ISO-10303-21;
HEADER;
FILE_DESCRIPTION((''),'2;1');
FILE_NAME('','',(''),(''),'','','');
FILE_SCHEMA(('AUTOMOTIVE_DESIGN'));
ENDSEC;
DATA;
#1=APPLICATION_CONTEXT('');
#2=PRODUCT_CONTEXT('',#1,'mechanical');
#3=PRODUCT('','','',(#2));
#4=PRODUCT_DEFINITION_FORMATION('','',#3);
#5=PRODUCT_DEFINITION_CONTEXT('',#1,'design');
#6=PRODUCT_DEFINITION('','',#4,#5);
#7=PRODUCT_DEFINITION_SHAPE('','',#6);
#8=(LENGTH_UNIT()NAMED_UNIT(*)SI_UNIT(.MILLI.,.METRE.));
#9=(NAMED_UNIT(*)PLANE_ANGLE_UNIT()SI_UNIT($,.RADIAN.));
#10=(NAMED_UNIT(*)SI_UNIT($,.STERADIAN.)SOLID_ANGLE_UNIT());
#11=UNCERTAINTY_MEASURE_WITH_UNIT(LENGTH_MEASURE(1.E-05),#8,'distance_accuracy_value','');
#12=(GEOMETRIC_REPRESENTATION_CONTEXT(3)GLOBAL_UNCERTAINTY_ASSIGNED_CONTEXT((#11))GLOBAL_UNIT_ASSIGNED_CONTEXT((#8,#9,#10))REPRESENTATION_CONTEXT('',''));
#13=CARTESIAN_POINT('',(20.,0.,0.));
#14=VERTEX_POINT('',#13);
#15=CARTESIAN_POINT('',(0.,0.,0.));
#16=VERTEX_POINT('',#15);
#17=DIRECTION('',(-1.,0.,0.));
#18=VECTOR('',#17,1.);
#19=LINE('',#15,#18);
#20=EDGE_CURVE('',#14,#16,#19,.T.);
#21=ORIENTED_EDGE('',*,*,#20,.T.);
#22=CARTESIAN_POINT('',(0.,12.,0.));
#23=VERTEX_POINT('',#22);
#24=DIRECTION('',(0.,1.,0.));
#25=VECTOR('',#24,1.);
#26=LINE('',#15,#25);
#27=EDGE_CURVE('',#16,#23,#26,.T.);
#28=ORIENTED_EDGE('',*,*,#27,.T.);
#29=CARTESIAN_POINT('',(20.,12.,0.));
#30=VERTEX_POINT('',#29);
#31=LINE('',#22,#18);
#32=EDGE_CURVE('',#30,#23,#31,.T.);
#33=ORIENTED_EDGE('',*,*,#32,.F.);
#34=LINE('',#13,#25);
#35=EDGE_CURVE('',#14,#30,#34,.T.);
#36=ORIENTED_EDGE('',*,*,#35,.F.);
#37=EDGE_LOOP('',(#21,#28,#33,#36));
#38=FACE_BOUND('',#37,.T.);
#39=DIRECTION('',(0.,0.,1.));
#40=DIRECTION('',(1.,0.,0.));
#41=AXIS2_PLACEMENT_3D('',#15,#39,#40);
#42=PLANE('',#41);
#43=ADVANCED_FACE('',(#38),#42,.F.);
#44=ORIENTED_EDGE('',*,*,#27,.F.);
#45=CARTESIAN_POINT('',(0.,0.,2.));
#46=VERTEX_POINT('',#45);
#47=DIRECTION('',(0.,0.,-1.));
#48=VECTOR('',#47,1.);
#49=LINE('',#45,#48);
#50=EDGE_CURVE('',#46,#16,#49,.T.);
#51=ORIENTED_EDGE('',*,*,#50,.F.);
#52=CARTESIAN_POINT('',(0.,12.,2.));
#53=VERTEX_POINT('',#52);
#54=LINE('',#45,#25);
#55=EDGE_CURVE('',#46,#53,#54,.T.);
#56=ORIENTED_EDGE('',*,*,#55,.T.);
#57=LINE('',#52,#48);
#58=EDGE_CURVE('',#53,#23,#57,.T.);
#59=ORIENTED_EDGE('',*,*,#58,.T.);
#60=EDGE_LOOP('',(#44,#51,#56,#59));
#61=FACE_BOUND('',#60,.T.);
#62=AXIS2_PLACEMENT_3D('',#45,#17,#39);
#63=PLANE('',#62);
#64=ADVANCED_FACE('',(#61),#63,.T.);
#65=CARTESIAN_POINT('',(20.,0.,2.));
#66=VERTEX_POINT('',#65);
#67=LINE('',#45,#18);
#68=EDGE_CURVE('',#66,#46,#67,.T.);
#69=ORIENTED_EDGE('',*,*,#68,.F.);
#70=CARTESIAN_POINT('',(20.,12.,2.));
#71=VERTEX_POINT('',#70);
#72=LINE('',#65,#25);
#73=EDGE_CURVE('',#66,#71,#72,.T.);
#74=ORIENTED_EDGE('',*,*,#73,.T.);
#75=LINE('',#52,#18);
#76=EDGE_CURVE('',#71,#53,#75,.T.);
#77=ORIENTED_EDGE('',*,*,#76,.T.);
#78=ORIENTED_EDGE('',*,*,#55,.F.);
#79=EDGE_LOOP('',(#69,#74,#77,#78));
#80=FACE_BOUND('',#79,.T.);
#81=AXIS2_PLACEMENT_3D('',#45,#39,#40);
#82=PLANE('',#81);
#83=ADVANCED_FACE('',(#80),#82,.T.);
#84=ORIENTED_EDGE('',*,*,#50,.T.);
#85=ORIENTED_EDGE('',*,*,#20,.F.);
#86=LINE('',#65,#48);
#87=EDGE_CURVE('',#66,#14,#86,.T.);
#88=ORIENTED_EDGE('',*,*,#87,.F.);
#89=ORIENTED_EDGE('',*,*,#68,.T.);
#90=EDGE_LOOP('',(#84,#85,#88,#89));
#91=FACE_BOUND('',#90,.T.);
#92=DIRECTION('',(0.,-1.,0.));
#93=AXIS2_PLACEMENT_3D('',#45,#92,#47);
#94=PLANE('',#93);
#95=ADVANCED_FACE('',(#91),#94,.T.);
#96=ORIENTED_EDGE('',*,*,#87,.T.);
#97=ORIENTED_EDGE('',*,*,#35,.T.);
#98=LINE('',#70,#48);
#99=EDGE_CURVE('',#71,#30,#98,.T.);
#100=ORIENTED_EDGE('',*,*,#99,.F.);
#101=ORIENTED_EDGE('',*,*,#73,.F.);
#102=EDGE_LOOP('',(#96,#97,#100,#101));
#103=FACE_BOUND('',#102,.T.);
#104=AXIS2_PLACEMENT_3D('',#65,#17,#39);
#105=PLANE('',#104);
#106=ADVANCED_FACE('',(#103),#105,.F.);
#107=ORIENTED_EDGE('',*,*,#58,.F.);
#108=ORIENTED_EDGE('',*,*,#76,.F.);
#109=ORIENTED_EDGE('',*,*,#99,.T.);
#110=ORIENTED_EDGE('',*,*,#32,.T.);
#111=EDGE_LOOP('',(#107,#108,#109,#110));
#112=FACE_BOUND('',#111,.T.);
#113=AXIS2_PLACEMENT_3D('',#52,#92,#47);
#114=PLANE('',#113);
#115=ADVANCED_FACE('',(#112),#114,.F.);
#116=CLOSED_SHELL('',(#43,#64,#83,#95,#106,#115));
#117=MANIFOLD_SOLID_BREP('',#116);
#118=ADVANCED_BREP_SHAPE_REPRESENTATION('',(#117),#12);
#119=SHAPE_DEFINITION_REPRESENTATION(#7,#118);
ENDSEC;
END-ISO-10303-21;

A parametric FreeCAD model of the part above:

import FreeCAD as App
import Part
import Sketcher
from FreeCAD import Vector
Q = App.Units.Quantity


def add_polygon(sketch, points):
    """Adds a closed chain of lines whose ends are joined by coincident constraints."""
    first, n = sketch.GeometryCount, len(points)
    for a, b in zip(points, points[1:] + points[:1]):
        sketch.addGeometry(Part.LineSegment(App.Vector(*a, 0), App.Vector(*b, 0)), False)
    for i in range(n):
        sketch.addConstraint(Sketcher.Constraint("Coincident", first + i, 2, first + (i + 1) % n, 1))

doc = App.newDocument("Part")
body = doc.addObject("PartDesign::Body", "Body")

# Sketch on XY plane
sketch1 = body.newObject("Sketcher::SketchObject", "Sketch")
sketch1.AttachmentSupport = (doc.getObject("XY_Plane"), [""])
sketch1.MapMode = "FlatFace"
add_polygon(sketch1, [(0, 0), (20, 0), (20, 12), (0, 12)])  # lines 0-3
sketch1.addConstraint(Sketcher.Constraint("Horizontal", 0))
sketch1.addConstraint(Sketcher.Constraint("Vertical", 1))
sketch1.addConstraint(Sketcher.Constraint("Horizontal", 2))
sketch1.addConstraint(Sketcher.Constraint("Vertical", 3))
sketch1.addConstraint(Sketcher.Constraint("Coincident", 3, 2, -1, 1))
sketch1.addConstraint(Sketcher.Constraint("DistanceX", 0, 1, 0, 2, Q("20 mm")))
sketch1.addConstraint(Sketcher.Constraint("DistanceY", 1, 1, 1, 2, Q("12 mm")))
pad1 = body.newObject("PartDesign::Pad", "Pad")
pad1.Profile = sketch1
pad1.Length = 2

doc.recompute()
